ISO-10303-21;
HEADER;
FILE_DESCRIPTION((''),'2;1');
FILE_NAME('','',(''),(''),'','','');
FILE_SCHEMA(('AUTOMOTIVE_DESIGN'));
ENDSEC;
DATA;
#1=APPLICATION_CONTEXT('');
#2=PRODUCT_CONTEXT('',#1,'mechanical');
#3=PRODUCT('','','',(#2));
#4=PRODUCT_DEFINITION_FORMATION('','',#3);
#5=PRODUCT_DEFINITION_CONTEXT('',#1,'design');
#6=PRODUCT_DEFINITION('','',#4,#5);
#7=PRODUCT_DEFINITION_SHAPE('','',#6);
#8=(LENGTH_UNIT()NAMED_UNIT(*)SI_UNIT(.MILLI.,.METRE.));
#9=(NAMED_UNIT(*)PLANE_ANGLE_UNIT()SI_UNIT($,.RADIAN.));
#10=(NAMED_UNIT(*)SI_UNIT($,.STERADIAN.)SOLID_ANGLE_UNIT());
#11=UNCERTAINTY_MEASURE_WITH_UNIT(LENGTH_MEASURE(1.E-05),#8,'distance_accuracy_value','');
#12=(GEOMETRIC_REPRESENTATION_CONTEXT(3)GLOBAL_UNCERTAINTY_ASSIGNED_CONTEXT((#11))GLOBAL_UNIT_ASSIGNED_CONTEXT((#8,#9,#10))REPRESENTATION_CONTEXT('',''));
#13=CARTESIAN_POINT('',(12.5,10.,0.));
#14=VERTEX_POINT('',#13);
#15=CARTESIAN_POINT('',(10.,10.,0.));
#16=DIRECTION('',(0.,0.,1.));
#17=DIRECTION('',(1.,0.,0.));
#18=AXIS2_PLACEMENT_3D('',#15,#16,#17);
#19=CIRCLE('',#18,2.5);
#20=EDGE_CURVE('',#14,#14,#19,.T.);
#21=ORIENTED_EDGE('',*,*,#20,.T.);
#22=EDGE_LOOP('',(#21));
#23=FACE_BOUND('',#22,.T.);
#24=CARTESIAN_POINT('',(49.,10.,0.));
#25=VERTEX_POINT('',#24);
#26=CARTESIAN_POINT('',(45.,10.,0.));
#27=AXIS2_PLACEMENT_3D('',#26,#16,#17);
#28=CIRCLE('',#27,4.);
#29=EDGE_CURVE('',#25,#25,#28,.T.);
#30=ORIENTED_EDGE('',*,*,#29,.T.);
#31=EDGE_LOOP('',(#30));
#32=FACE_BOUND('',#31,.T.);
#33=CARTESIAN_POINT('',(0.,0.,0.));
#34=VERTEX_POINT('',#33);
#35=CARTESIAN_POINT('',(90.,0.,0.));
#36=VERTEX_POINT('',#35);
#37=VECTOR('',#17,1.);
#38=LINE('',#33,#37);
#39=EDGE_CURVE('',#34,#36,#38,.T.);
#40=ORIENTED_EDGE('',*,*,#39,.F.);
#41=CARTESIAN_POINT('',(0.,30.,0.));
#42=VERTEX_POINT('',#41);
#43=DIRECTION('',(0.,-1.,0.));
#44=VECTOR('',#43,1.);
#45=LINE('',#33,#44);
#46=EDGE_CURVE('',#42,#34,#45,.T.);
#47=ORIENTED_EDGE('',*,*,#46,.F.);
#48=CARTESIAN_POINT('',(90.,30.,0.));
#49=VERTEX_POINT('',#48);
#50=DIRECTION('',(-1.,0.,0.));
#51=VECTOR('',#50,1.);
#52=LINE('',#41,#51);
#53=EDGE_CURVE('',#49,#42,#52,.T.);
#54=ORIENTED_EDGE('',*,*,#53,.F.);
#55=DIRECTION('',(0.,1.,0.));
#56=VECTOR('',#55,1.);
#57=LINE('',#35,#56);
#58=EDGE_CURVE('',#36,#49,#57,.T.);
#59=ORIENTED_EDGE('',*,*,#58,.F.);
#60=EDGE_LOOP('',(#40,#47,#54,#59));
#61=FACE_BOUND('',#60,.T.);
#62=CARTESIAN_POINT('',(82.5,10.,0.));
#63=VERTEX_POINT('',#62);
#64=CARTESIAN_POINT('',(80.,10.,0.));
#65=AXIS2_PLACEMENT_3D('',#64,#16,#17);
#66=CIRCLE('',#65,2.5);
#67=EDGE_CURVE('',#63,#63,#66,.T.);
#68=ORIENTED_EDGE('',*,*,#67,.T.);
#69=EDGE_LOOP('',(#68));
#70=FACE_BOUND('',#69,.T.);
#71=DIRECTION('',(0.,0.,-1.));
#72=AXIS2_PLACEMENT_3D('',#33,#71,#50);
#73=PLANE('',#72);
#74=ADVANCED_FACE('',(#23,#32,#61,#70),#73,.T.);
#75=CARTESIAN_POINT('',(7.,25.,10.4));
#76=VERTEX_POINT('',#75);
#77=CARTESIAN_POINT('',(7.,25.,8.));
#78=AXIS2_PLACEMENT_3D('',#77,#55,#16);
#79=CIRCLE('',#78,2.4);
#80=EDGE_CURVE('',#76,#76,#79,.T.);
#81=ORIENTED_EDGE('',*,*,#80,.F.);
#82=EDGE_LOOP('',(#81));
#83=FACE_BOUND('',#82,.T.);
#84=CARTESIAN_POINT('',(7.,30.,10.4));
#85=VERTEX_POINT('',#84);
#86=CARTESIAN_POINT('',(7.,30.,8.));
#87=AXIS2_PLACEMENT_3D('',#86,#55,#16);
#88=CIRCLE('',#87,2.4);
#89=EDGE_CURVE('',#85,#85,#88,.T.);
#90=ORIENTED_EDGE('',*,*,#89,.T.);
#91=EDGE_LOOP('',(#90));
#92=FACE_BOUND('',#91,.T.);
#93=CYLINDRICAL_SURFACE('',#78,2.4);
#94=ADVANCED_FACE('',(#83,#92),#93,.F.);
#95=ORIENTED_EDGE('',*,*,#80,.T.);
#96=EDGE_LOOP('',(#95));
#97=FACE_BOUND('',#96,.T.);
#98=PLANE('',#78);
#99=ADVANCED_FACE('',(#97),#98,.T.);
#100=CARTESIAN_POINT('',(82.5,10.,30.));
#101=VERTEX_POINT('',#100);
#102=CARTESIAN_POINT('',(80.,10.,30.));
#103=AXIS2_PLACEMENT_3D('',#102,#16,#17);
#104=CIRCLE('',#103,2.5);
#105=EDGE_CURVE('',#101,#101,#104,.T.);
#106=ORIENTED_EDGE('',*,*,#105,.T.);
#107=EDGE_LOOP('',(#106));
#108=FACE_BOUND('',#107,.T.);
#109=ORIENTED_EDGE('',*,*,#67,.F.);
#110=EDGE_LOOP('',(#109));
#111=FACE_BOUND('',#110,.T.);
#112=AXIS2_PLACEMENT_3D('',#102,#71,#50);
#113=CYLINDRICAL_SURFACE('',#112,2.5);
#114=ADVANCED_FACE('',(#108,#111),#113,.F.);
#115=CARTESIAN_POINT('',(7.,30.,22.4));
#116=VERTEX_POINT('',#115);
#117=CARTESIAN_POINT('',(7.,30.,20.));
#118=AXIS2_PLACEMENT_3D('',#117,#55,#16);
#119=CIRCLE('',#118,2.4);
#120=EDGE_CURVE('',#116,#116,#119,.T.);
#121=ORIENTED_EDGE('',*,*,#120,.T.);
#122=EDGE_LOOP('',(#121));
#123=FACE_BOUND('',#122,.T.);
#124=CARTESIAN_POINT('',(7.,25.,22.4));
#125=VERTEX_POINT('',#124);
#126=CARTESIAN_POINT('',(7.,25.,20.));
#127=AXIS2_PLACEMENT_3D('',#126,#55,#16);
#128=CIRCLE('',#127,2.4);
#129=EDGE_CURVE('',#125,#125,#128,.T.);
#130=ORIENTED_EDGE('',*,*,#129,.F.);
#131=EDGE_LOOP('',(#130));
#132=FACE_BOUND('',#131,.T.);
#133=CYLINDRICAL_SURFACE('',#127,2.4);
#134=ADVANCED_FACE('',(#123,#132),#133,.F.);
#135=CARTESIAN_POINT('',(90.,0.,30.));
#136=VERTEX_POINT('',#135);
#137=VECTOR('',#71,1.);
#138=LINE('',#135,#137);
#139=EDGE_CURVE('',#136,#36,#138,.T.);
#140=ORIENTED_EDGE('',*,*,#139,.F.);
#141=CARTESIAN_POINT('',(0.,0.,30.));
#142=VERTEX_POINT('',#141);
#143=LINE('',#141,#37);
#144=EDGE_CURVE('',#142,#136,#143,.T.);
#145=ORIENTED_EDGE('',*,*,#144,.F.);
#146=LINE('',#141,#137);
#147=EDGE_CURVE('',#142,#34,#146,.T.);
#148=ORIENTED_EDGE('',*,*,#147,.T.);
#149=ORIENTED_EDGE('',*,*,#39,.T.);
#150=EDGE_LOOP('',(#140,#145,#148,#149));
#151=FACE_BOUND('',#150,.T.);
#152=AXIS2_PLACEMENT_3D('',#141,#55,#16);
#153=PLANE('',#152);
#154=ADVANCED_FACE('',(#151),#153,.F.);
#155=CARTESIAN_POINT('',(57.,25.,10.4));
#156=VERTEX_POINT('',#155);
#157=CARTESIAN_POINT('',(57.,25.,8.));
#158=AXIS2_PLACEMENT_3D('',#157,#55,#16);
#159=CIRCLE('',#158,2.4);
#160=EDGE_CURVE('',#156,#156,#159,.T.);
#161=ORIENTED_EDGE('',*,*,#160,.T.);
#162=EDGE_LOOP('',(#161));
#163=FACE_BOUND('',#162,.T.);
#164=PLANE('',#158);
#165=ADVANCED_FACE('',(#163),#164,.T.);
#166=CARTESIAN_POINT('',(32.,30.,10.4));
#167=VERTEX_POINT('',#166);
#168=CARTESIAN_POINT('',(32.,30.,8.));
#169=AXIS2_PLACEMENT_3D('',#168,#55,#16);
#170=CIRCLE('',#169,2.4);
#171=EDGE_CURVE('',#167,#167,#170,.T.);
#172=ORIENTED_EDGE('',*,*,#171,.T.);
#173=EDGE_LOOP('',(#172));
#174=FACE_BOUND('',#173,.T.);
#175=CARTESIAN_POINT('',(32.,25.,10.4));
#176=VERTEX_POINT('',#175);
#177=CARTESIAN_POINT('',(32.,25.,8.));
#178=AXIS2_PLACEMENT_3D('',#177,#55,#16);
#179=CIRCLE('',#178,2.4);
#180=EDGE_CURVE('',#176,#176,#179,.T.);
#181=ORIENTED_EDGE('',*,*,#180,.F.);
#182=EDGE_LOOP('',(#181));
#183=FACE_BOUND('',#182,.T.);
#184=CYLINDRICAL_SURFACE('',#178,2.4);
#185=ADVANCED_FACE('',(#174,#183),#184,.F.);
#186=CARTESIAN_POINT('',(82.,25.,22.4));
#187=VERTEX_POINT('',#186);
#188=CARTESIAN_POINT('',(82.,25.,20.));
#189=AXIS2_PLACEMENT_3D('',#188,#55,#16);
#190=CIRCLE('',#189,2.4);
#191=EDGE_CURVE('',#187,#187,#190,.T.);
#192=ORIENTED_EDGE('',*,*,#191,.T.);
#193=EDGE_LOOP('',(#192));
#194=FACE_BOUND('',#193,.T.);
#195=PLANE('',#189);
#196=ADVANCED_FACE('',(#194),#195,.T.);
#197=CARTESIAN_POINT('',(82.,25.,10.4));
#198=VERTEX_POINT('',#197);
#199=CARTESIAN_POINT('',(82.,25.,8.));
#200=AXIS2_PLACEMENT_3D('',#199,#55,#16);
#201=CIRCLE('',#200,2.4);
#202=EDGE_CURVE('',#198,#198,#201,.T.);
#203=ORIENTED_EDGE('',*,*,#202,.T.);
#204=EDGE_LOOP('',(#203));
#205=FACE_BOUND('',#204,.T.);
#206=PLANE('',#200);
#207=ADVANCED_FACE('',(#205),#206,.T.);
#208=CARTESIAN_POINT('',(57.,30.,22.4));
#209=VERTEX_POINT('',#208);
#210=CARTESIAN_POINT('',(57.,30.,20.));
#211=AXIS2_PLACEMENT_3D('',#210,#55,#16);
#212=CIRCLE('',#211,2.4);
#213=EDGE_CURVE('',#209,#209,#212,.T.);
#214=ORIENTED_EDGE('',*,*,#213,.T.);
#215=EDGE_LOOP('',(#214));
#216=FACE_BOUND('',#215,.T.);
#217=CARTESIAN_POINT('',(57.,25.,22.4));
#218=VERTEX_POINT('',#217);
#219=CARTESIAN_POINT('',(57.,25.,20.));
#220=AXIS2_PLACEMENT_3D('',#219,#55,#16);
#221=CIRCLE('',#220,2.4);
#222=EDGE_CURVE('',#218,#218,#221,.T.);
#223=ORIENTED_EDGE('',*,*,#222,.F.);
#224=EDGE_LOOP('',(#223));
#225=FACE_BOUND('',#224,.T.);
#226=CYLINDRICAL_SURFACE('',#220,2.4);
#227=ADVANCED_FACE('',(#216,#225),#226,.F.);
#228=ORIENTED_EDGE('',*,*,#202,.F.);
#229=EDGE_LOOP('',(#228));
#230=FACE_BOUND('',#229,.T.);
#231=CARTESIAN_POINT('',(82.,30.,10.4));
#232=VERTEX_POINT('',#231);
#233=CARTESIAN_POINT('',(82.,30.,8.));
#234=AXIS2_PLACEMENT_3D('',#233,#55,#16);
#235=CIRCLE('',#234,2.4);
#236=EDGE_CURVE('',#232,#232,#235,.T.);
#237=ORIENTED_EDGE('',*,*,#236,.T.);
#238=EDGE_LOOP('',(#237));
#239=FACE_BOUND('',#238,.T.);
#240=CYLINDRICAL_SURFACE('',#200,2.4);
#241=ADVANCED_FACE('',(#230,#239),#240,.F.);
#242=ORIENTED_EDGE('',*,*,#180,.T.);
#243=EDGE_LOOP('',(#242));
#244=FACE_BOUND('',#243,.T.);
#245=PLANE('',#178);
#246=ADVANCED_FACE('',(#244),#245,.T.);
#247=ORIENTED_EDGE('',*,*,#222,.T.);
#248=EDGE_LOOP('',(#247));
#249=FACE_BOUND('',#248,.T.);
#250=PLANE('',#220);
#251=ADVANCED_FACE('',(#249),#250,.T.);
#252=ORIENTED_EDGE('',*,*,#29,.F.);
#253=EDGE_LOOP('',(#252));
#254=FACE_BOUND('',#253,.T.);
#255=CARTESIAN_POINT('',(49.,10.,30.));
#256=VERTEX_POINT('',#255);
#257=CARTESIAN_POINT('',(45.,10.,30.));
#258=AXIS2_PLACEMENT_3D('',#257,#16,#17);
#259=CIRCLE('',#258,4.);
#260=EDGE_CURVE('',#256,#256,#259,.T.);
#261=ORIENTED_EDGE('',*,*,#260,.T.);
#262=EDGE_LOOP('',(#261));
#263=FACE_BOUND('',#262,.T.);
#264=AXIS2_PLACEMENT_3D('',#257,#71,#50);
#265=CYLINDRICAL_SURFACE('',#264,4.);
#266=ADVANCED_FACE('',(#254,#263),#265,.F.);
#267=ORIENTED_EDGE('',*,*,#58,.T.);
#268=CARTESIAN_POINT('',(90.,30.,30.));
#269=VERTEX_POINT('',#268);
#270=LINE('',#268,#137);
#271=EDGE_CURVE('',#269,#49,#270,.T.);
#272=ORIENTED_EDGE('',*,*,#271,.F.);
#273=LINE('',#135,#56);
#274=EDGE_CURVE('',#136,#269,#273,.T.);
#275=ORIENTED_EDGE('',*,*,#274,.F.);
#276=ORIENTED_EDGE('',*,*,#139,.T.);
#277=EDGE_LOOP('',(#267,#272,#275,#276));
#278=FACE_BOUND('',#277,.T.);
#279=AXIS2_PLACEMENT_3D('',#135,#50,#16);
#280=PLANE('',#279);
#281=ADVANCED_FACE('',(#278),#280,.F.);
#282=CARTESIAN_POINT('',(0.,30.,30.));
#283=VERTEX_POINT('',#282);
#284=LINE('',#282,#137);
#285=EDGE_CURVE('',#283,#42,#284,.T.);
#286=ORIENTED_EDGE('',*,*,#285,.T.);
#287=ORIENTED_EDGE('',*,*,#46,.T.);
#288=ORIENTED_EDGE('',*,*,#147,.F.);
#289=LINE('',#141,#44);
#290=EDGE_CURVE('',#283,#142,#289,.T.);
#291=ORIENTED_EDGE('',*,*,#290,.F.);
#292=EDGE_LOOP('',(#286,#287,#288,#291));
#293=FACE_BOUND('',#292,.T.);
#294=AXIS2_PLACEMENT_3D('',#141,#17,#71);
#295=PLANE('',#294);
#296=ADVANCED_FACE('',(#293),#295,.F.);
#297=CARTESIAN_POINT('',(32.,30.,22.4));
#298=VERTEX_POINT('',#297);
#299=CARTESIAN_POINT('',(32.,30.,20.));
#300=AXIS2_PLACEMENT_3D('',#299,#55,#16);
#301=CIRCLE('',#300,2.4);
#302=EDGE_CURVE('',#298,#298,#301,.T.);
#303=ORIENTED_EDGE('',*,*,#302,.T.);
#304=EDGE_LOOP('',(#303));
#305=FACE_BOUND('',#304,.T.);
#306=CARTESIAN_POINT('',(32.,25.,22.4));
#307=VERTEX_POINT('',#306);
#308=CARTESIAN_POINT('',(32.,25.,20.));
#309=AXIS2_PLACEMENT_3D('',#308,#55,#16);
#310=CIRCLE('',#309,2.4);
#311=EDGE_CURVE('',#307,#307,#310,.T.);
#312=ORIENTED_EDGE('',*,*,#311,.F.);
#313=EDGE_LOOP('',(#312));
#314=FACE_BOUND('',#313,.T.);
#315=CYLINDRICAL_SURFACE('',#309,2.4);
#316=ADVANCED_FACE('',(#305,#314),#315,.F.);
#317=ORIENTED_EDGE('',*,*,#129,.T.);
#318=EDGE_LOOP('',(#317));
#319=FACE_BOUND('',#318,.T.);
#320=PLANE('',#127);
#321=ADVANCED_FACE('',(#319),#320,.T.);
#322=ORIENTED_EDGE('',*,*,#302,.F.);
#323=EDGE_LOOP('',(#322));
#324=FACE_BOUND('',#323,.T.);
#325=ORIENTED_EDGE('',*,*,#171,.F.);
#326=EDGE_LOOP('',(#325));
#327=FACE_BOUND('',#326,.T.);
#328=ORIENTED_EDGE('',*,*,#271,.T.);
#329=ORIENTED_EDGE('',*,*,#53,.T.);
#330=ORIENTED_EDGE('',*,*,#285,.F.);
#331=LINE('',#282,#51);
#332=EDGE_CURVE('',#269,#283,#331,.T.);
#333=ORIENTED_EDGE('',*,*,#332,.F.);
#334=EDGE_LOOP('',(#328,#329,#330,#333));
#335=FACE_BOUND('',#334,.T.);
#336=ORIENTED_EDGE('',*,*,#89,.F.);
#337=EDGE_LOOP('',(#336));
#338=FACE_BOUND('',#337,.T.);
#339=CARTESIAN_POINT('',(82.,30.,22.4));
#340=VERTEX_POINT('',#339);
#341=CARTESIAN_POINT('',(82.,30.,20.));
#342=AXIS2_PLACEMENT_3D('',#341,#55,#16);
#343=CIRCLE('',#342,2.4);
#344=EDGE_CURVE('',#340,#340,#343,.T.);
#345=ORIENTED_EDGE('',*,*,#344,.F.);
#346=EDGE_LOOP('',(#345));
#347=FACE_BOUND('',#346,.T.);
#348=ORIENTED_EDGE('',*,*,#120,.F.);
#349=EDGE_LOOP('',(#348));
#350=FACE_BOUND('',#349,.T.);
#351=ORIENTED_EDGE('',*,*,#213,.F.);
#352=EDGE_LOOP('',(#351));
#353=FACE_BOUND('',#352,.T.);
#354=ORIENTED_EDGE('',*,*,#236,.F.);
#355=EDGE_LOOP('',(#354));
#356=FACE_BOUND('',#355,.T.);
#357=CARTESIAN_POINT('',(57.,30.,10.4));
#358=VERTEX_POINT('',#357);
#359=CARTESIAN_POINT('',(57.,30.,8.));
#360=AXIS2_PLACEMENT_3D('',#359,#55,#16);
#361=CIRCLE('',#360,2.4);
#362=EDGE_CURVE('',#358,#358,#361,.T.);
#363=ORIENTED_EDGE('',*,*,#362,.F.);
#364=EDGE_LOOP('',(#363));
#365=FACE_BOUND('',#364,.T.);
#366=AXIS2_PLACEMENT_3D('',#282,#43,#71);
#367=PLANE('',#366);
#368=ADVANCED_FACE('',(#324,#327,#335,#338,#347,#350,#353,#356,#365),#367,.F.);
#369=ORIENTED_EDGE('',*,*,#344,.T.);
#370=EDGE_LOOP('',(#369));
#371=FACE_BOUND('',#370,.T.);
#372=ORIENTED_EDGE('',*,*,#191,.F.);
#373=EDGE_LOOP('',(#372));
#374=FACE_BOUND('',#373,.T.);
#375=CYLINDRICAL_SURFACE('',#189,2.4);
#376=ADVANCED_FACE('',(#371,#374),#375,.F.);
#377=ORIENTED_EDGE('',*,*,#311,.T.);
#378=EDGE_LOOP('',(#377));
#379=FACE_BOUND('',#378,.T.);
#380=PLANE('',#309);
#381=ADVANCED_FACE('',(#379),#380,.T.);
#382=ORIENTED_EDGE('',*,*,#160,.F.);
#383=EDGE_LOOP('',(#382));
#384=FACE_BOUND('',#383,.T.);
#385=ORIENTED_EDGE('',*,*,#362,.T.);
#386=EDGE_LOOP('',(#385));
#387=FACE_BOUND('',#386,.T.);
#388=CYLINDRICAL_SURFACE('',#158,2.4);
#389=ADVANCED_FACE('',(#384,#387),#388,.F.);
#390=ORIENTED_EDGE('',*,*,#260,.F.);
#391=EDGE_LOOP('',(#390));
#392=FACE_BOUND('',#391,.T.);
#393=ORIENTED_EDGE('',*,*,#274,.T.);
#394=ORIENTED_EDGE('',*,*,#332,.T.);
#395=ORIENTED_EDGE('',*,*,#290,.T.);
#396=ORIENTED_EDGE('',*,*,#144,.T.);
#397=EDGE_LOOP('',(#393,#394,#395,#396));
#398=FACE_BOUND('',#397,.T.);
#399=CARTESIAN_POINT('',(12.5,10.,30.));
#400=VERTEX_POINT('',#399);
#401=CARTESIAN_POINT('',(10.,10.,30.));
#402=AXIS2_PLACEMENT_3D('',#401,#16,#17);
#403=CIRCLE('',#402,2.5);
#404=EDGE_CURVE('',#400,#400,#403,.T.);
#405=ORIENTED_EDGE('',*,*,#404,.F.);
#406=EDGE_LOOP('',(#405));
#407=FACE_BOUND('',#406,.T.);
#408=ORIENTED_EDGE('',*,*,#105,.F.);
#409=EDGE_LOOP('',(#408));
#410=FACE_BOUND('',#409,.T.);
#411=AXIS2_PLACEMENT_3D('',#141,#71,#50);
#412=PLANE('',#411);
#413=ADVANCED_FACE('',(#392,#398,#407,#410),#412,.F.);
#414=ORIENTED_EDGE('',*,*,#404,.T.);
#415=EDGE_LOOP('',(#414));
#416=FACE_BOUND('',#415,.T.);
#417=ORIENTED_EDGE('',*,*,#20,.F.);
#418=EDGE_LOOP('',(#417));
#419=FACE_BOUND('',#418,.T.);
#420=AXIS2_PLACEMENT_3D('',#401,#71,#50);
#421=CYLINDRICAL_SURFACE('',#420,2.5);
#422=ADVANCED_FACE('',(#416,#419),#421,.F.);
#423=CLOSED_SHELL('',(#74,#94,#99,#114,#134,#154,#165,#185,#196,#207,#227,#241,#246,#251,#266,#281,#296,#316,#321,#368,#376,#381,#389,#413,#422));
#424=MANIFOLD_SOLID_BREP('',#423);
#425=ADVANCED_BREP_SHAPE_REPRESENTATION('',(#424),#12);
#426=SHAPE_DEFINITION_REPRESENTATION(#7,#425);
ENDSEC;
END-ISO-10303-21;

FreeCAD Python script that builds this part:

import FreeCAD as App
import Part
import Sketcher


def add_polygon(sketch, points):
    """Adds a closed chain of lines whose ends are joined by coincident constraints."""
    first, n = sketch.GeometryCount, len(points)
    for a, b in zip(points, points[1:] + points[:1]):
        sketch.addGeometry(Part.LineSegment(App.Vector(*a, 0), App.Vector(*b, 0)), False)
    for i in range(n):
        sketch.addConstraint(Sketcher.Constraint("Coincident", first + i, 2, first + (i + 1) % n, 1))

doc = App.newDocument("Part")
body = doc.addObject("PartDesign::Body", "Body")

# Sketch on XY plane
sketch1 = body.newObject("Sketcher::SketchObject", "Sketch")
sketch1.AttachmentSupport = (doc.getObject("XY_Plane"), [""])
sketch1.MapMode = "FlatFace"
add_polygon(sketch1, [(0, 30), (0, 0), (90, 0), (90, 30)])  # lines 0-3
sketch1.addGeometry(Part.Circle(App.Vector(10, 10, 0), App.Vector(0, 0, 1), 2.5), False)  # 4
sketch1.addGeometry(Part.Circle(App.Vector(45, 10, 0), App.Vector(0, 0, 1), 4), False)  # 5
sketch1.addGeometry(Part.Circle(App.Vector(80, 10, 0), App.Vector(0, 0, 1), 2.5), False)  # 6
sketch1.addConstraint(Sketcher.Constraint("Vertical", 0))
sketch1.addConstraint(Sketcher.Constraint("Horizontal", 1))
sketch1.addConstraint(Sketcher.Constraint("Vertical", 2))
sketch1.addConstraint(Sketcher.Constraint("Horizontal", 3))
sketch1.addConstraint(Sketcher.Constraint("Coincident", 0, 2, -1, 1))
sketch1.addConstraint(Sketcher.Constraint("Equal", 4, 6))
sketch1.addConstraint(Sketcher.Constraint("Horizontal", 4, 3, 5, 3))
sketch1.addConstraint(Sketcher.Constraint("Horizontal", 5, 3, 6, 3))
sketch1.addConstraint(Sketcher.Constraint("Diameter", 4, 5.0))
sketch1.addConstraint(Sketcher.Constraint("Diameter", 5, 8.0))
sketch1.addConstraint(Sketcher.Constraint("DistanceX", 1, 1, 1, 2, 90.0))
sketch1.addConstraint(Sketcher.Constraint("DistanceY", 0, 2, 0, 1, 30.0))
sketch1.addConstraint(Sketcher.Constraint("DistanceX", -1, 1, 4, 3, 10.0))
sketch1.addConstraint(Sketcher.Constraint("DistanceY", -1, 1, 4, 3, 10.0))
sketch1.addConstraint(Sketcher.Constraint("DistanceX", -1, 1, 5, 3, 45.0))
sketch1.addConstraint(Sketcher.Constraint("DistanceX", -1, 1, 6, 3, 80.0))
pad1 = body.newObject("PartDesign::Pad", "Pad")
pad1.Profile = sketch1
pad1.Length = 30

# Sketch on XZ plane
sketch2 = body.newObject("Sketcher::SketchObject", "Sketch001")
sketch2.AttachmentSupport = (doc.getObject("XZ_Plane"), [""])
sketch2.MapMode = "FlatFace"
sketch2.AttachmentOffset = App.Placement(App.Vector(0, 0, -30), App.Rotation())
sketch2.addGeometry(Part.Circle(App.Vector(7, 8, 0), App.Vector(0, 0, 1), 2.4), False)
sketch2.addGeometry(Part.Circle(App.Vector(32, 8, 0), App.Vector(0, 0, 1), 2.4), False)
sketch2.addGeometry(Part.Circle(App.Vector(57, 8, 0), App.Vector(0, 0, 1), 2.4), False)
sketch2.addGeometry(Part.Circle(App.Vector(82, 8, 0), App.Vector(0, 0, 1), 2.4), False)
sketch2.addGeometry(Part.Circle(App.Vector(32, 20, 0), App.Vector(0, 0, 1), 2.4), False)
sketch2.addGeometry(Part.Circle(App.Vector(57, 20, 0), App.Vector(0, 0, 1), 2.4), False)
sketch2.addGeometry(Part.Circle(App.Vector(82, 20, 0), App.Vector(0, 0, 1), 2.4), False)
sketch2.addGeometry(Part.Circle(App.Vector(7, 20, 0), App.Vector(0, 0, 1), 2.4), False)
sketch2.addConstraint(Sketcher.Constraint("Equal", 0, 1))
sketch2.addConstraint(Sketcher.Constraint("Equal", 1, 2))
sketch2.addConstraint(Sketcher.Constraint("Equal", 2, 3))
sketch2.addConstraint(Sketcher.Constraint("Equal", 3, 4))
sketch2.addConstraint(Sketcher.Constraint("Equal", 4, 5))
sketch2.addConstraint(Sketcher.Constraint("Equal", 5, 6))
sketch2.addConstraint(Sketcher.Constraint("Equal", 6, 7))
sketch2.addConstraint(Sketcher.Constraint("Horizontal", 0, 3, 1, 3))
sketch2.addConstraint(Sketcher.Constraint("Horizontal", 1, 3, 2, 3))
sketch2.addConstraint(Sketcher.Constraint("Horizontal", 2, 3, 3, 3))
sketch2.addConstraint(Sketcher.Constraint("Horizontal", 4, 3, 5, 3))
sketch2.addConstraint(Sketcher.Constraint("Horizontal", 5, 3, 6, 3))
sketch2.addConstraint(Sketcher.Constraint("Horizontal", 6, 3, 7, 3))
sketch2.addConstraint(Sketcher.Constraint("Vertical", 1, 3, 4, 3))
sketch2.addConstraint(Sketcher.Constraint("Vertical", 2, 3, 5, 3))
sketch2.addConstraint(Sketcher.Constraint("Vertical", 3, 3, 6, 3))
sketch2.addConstraint(Sketcher.Constraint("Vertical", 0, 3, 7, 3))
sketch2.addConstraint(Sketcher.Constraint("Diameter", 0, 4.8))
sketch2.addConstraint(Sketcher.Constraint("DistanceX", -1, 1, 0, 3, 7.0))
sketch2.addConstraint(Sketcher.Constraint("DistanceY", -1, 1, 0, 3, 8.0))
sketch2.addConstraint(Sketcher.Constraint("DistanceX", -1, 1, 1, 3, 32.0))
sketch2.addConstraint(Sketcher.Constraint("DistanceX", -1, 1, 2, 3, 57.0))
sketch2.addConstraint(Sketcher.Constraint("DistanceX", -1, 1, 3, 3, 82.0))
sketch2.addConstraint(Sketcher.Constraint("DistanceY", -1, 1, 4, 3, 20.0))
pocket1 = body.newObject("PartDesign::Pocket", "Pocket")
pocket1.Profile = sketch2
pocket1.Length = 5
pocket1.Reversed = True

doc.recompute()
